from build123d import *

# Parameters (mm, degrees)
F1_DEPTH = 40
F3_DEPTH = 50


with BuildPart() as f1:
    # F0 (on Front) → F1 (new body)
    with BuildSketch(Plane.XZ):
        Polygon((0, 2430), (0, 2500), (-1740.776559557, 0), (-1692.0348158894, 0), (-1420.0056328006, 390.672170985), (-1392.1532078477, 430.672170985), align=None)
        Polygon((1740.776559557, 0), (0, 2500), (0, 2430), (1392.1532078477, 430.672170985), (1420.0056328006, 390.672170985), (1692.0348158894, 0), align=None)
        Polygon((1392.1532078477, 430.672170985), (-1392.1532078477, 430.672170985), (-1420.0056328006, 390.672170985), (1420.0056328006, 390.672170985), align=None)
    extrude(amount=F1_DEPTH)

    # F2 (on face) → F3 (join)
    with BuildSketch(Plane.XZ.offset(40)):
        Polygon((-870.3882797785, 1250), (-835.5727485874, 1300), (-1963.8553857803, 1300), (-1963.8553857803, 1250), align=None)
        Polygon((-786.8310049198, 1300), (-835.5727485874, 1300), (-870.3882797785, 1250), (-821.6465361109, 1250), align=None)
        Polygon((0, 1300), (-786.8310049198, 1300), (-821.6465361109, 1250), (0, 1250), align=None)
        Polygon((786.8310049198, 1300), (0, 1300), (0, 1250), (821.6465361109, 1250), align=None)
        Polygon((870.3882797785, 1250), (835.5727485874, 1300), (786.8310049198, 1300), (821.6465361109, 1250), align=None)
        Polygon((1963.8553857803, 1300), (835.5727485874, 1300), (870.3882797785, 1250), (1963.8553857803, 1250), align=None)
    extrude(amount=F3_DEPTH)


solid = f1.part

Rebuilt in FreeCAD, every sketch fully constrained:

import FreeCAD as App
import Part
import Sketcher
from FreeCAD import Vector
Q = App.Units.Quantity

doc = App.newDocument("Part")
body = doc.addObject("PartDesign::Body", "Body")

sketch1 = body.newObject("Sketcher::SketchObject", "Sketch")
sketch1.AttachmentSupport = (doc.getObject("XZ_Plane"), [""])
sketch1.MapMode = "FlatFace"
sketch1.addGeometry(Part.LineSegment(Vector(0, 2500, 0), Vector(-1740.77656, 0, 0)), False)
sketch1.addGeometry(Part.LineSegment(Vector(-1740.77656, 0, 0), Vector(-1692.034816, 0, 0)), False)
sketch1.addGeometry(Part.LineSegment(Vector(-1692.034816, 0, 0), Vector(-1420.005633, 390.672171, 0)), False)
sketch1.addGeometry(Part.LineSegment(Vector(-1420.005633, 390.672171, 0), Vector(1420.005633, 390.672171, 0)), False)
sketch1.addGeometry(Part.LineSegment(Vector(1420.005633, 390.672171, 0), Vector(1692.034816, 0, 0)), False)
sketch1.addGeometry(Part.LineSegment(Vector(1692.034816, 0, 0), Vector(1740.77656, 0, 0)), False)
sketch1.addGeometry(Part.LineSegment(Vector(1740.77656, 0, 0), Vector(0, 2500, 0)), False)
sketch1.addGeometry(Part.LineSegment(Vector(-1392.153208, 430.672171, 0), Vector(0, 2430, 0)), False)
sketch1.addGeometry(Part.LineSegment(Vector(0, 2430, 0), Vector(1392.153208, 430.672171, 0)), False)
sketch1.addGeometry(Part.LineSegment(Vector(1392.153208, 430.672171, 0), Vector(-1392.153208, 430.672171, 0)), False)
sketch1.addConstraint(Sketcher.Constraint("Coincident", 0, 2, 1, 1))
sketch1.addConstraint(Sketcher.Constraint("Coincident", 1, 2, 2, 1))
sketch1.addConstraint(Sketcher.Constraint("Coincident", 2, 2, 3, 1))
sketch1.addConstraint(Sketcher.Constraint("Coincident", 3, 2, 4, 1))
sketch1.addConstraint(Sketcher.Constraint("Coincident", 4, 2, 5, 1))
sketch1.addConstraint(Sketcher.Constraint("Coincident", 5, 2, 6, 1))
sketch1.addConstraint(Sketcher.Constraint("Coincident", 6, 2, 0, 1))
sketch1.addConstraint(Sketcher.Constraint("Coincident", 7, 2, 8, 1))
sketch1.addConstraint(Sketcher.Constraint("Coincident", 8, 2, 9, 1))
sketch1.addConstraint(Sketcher.Constraint("Coincident", 9, 2, 7, 1))
sketch1.addConstraint(Sketcher.Constraint("Horizontal", 1))
sketch1.addConstraint(Sketcher.Constraint("Horizontal", 3))
sketch1.addConstraint(Sketcher.Constraint("Horizontal", 5))
sketch1.addConstraint(Sketcher.Constraint("Horizontal", 9))
sketch1.addConstraint(Sketcher.Constraint("Symmetric", 1, 2, 4, 2, -1, 1))
sketch1.addConstraint(Sketcher.Constraint("Symmetric", 0, 2, 5, 2, -2))
sketch1.addConstraint(Sketcher.Constraint("PointOnObject", 6, 2, -2))
sketch1.addConstraint(Sketcher.Constraint("PointOnObject", 7, 2, -2))
sketch1.addConstraint(Sketcher.Constraint("Parallel", 0, 2))
sketch1.addConstraint(Sketcher.Constraint("Parallel", 4, 6))
sketch1.addConstraint(Sketcher.Constraint("Parallel", 2, 7))
sketch1.addConstraint(Sketcher.Constraint("Parallel", 6, 8))
sketch1.addConstraint(Sketcher.Constraint("DistanceY", -1, 1, 6, 2, Q("2500 mm")))
sketch1.addConstraint(Sketcher.Constraint("DistanceY", -1, 1, 7, 2, Q("2430 mm")))
sketch1.addConstraint(Sketcher.Constraint("DistanceY", 3, 2, 8, 2, Q("40 mm")))
sketch1.addConstraint(Sketcher.Constraint("Distance", 0, Q("3046.358979 mm")))
sketch1.addConstraint(Sketcher.Constraint("Distance", 2, Q("476.05107 mm")))
sketch1.addConstraint(Sketcher.Constraint("DistanceX", 1, 1, 1, 2, Q("48.741744 mm")))
pad1 = body.newObject("PartDesign::Pad", "Pad")
pad1.Profile = sketch1
pad1.Length = 40

sketch2 = body.newObject("Sketcher::SketchObject", "Sketch001")
sketch2.AttachmentSupport = (doc.getObject("XZ_Plane"), [""])
sketch2.MapMode = "FlatFace"
sketch2.AttachmentOffset = App.Placement(Vector(0, 0, 40), App.Rotation())
sketch2.addGeometry(Part.LineSegment(Vector(-1963.855386, 1300, 0), Vector(-1963.855386, 1250, 0)), False)
sketch2.addGeometry(Part.LineSegment(Vector(-1963.855386, 1250, 0), Vector(1963.855386, 1250, 0)), False)
sketch2.addGeometry(Part.LineSegment(Vector(1963.855386, 1250, 0), Vector(1963.855386, 1300, 0)), False)
sketch2.addGeometry(Part.LineSegment(Vector(1963.855386, 1300, 0), Vector(-1963.855386, 1300, 0)), False)
sketch2.addConstraint(Sketcher.Constraint("Coincident", 0, 2, 1, 1))
sketch2.addConstraint(Sketcher.Constraint("Coincident", 1, 2, 2, 1))
sketch2.addConstraint(Sketcher.Constraint("Coincident", 2, 2, 3, 1))
sketch2.addConstraint(Sketcher.Constraint("Coincident", 3, 2, 0, 1))
sketch2.addConstraint(Sketcher.Constraint("Vertical", 0))
sketch2.addConstraint(Sketcher.Constraint("Horizontal", 1))
sketch2.addConstraint(Sketcher.Constraint("Vertical", 2))
sketch2.addConstraint(Sketcher.Constraint("Horizontal", 3))
sketch2.addConstraint(Sketcher.Constraint("DistanceY", 0, 2, 0, 1, Q("50 mm")))
sketch2.addConstraint(Sketcher.Constraint("DistanceY", -1, 1, 0, 2, Q("1250 mm")))
sketch2.addConstraint(Sketcher.Constraint("DistanceX", 1, 1, 1, 2, Q("3927.710772 mm")))
sketch2.addConstraint(Sketcher.Constraint("DistanceX", 0, 2, -1, 1, Q("1963.855386 mm")))
pad2 = body.newObject("PartDesign::Pad", "Pad001")
pad2.Profile = sketch2
pad2.Length = 50

doc.recompute()
